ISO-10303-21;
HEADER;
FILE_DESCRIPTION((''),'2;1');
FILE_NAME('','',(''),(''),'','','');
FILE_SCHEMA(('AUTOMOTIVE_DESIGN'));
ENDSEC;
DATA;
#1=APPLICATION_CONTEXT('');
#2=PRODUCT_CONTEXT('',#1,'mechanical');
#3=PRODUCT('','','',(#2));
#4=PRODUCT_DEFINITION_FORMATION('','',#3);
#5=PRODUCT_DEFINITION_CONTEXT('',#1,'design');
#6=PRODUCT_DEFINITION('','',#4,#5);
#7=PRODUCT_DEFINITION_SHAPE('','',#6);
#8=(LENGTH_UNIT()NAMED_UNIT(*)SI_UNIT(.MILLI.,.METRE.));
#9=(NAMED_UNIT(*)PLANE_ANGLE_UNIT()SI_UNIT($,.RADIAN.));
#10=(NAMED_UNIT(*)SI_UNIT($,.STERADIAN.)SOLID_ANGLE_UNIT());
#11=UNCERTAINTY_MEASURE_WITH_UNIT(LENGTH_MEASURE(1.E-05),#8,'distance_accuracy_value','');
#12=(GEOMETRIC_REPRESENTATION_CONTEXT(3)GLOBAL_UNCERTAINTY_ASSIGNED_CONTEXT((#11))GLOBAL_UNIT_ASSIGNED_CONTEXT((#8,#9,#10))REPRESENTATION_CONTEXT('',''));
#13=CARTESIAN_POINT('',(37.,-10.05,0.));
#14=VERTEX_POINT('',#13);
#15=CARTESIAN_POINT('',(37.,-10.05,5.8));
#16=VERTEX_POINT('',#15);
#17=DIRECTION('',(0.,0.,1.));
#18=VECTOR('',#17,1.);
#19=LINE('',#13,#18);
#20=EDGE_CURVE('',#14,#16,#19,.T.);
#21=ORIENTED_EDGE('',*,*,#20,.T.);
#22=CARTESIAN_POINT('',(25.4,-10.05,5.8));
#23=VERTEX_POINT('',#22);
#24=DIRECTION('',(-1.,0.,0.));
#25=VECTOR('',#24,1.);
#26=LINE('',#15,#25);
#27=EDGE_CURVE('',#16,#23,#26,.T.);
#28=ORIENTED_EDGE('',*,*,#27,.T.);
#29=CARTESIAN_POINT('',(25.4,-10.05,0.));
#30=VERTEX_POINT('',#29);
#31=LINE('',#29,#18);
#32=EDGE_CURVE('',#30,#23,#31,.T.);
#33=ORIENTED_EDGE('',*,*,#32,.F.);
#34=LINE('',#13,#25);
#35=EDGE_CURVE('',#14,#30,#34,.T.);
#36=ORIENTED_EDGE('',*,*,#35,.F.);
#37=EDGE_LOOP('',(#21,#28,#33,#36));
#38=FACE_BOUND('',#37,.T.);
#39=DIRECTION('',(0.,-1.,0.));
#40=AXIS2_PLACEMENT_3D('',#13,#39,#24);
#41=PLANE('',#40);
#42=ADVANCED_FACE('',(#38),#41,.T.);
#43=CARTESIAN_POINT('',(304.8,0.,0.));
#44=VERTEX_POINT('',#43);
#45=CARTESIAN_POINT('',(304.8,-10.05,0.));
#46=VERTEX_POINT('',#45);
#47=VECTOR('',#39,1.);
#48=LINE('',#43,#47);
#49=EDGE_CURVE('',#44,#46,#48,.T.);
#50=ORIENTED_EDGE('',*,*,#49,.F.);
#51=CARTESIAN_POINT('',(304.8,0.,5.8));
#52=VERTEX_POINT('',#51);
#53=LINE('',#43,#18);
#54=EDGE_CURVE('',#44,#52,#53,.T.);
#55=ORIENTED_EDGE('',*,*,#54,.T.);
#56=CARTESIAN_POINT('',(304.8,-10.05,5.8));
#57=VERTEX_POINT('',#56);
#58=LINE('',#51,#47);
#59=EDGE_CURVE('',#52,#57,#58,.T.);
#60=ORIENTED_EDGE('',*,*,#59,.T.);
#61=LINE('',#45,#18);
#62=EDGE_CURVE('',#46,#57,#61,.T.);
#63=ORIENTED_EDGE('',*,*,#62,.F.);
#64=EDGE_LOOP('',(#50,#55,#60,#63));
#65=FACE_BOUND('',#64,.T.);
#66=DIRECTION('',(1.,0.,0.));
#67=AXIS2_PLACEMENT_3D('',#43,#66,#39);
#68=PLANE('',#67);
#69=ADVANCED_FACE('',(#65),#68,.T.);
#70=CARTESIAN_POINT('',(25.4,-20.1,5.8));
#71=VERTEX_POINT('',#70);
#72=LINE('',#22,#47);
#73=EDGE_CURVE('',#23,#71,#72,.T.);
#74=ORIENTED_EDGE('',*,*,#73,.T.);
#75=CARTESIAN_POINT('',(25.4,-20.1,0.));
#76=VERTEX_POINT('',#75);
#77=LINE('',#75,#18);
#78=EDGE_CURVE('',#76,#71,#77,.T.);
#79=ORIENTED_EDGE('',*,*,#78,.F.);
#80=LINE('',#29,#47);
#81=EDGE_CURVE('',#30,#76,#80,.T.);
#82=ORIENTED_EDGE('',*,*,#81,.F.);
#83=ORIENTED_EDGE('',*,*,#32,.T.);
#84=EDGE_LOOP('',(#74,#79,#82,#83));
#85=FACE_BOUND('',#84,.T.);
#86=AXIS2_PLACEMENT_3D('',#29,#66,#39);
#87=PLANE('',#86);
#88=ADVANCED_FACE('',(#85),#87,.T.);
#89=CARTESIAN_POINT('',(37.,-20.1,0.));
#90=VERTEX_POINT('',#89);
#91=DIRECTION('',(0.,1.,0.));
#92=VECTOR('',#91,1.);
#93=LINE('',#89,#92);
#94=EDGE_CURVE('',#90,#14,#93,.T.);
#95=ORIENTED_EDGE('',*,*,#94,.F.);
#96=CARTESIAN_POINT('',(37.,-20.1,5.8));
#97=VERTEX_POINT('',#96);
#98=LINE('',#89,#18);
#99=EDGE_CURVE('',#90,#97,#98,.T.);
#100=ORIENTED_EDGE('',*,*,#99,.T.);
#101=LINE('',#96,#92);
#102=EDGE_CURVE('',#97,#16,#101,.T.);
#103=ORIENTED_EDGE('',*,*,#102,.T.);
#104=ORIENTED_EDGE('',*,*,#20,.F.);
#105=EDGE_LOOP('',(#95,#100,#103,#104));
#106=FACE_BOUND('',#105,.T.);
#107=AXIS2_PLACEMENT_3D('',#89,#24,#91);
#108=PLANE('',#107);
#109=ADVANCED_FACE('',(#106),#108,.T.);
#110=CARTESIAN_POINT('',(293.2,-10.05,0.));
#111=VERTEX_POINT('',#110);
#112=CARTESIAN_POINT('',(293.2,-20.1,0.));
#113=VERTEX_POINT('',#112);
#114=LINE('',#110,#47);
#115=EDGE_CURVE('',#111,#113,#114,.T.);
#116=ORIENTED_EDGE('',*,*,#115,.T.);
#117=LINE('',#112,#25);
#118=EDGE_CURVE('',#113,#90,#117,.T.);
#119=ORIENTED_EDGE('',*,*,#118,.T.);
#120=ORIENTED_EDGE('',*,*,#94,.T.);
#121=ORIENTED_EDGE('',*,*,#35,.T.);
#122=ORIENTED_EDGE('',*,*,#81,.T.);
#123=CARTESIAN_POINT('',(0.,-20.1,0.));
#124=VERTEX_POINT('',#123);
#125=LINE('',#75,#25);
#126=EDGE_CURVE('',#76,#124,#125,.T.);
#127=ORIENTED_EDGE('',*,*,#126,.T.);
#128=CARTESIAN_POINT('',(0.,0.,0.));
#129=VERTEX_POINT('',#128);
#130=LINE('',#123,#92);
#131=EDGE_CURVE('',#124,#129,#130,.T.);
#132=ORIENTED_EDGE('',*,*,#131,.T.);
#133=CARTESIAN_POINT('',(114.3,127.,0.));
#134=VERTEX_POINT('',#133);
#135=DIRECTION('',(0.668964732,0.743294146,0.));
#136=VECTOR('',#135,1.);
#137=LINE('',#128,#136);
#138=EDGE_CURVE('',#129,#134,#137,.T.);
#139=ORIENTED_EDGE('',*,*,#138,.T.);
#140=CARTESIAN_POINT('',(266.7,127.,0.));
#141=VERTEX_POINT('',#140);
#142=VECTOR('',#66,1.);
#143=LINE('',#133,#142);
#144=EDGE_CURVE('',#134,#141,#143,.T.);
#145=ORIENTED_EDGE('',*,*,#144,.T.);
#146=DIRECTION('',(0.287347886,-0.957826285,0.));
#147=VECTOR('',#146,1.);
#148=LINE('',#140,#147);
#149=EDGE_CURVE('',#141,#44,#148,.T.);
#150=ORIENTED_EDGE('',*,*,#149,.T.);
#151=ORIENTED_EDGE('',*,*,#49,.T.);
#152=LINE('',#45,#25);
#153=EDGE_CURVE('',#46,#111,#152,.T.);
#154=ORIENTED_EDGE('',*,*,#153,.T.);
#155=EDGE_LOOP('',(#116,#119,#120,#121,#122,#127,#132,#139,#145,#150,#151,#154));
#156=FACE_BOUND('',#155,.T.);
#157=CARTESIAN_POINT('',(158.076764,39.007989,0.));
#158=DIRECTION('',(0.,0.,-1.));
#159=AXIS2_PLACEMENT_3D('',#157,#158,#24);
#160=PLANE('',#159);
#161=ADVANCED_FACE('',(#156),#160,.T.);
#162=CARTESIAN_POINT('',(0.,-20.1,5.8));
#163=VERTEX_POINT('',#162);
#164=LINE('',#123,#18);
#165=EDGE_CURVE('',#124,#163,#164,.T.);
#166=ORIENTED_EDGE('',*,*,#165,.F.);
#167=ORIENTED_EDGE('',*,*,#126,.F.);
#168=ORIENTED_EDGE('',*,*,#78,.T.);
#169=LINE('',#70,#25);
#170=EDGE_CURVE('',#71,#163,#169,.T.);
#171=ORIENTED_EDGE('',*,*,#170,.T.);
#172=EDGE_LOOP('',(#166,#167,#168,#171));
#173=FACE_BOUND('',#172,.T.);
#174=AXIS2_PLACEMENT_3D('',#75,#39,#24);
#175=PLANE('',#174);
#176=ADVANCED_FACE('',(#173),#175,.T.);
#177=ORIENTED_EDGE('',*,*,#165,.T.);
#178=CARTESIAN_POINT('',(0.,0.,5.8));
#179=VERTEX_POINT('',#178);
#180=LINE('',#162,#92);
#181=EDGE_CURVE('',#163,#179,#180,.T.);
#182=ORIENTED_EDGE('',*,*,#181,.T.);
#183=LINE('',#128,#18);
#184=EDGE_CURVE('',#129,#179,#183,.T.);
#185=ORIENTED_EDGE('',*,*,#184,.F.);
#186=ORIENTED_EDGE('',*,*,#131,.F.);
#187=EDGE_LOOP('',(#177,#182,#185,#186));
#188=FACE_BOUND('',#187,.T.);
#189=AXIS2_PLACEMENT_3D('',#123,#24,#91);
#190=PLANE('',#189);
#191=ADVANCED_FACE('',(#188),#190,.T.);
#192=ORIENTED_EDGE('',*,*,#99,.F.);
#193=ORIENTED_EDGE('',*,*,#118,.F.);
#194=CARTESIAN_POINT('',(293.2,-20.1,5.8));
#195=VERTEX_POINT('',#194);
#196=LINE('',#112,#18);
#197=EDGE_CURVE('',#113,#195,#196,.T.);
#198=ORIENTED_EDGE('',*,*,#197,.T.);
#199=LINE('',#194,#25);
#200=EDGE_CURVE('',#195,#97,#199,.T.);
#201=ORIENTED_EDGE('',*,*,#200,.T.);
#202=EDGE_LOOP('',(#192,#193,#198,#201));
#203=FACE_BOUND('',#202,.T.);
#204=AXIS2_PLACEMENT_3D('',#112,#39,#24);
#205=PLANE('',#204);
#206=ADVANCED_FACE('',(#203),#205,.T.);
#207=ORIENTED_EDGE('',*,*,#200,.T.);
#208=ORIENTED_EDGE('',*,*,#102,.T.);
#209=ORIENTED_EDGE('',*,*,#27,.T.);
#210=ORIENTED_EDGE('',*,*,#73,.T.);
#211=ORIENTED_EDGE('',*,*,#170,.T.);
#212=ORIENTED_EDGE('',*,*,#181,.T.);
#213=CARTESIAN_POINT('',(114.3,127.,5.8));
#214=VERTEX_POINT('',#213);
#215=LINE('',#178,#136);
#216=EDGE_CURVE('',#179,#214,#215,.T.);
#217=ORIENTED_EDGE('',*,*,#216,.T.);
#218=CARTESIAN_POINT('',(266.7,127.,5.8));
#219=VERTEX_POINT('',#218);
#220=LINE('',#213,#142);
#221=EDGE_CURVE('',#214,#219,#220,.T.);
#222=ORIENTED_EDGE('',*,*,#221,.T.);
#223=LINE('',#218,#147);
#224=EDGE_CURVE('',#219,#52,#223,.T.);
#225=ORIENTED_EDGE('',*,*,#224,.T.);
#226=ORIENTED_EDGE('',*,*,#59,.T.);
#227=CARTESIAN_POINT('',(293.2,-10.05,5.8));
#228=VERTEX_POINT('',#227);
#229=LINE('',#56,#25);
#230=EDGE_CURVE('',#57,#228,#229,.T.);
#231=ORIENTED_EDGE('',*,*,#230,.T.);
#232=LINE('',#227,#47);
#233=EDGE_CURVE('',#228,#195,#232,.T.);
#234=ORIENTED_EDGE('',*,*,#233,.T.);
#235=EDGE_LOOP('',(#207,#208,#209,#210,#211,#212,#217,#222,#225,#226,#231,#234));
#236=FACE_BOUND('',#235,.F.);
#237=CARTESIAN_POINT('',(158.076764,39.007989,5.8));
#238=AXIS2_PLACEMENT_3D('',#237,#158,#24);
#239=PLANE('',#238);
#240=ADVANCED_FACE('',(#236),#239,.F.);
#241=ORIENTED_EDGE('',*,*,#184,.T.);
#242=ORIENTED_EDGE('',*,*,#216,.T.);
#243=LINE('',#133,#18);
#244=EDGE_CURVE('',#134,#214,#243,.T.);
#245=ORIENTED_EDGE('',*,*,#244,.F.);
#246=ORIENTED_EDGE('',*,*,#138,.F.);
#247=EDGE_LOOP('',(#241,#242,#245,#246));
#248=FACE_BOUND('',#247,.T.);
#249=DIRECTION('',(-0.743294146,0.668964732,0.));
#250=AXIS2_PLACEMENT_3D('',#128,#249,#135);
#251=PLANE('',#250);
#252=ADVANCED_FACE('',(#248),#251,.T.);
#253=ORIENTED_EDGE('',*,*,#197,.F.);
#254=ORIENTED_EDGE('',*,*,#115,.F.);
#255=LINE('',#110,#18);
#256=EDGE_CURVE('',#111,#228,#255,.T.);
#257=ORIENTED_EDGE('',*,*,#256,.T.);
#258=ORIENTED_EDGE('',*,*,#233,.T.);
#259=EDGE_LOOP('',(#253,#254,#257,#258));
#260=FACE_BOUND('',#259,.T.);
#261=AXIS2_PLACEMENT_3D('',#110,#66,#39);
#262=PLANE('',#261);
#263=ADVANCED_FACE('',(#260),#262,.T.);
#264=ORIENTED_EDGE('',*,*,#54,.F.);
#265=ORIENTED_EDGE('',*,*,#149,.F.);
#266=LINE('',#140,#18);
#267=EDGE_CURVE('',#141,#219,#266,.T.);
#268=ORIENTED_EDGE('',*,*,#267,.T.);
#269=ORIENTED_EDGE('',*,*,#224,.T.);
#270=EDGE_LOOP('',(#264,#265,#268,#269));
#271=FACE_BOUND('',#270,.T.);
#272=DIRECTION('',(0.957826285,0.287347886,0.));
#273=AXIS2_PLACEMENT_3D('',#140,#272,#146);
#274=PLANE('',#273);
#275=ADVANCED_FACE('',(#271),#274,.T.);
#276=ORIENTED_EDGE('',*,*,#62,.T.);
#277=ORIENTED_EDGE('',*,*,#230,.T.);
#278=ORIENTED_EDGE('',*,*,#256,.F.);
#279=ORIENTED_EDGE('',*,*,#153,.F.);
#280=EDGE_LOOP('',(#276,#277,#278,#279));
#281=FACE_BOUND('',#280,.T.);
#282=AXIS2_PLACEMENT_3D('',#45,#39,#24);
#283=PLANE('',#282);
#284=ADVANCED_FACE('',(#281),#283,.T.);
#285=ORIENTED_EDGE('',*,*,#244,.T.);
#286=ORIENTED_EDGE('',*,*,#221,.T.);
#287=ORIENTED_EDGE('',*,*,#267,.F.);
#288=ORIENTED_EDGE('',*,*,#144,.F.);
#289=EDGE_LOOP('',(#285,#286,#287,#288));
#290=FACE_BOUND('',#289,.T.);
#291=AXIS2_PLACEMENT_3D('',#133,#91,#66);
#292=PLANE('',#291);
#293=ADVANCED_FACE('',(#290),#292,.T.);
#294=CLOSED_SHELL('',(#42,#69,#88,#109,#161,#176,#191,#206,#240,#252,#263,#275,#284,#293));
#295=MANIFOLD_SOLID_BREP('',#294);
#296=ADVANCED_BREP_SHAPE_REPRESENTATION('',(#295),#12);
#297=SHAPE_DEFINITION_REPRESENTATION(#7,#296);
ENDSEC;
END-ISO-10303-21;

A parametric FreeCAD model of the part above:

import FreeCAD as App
import Part
import Sketcher
from FreeCAD import Vector

doc = App.newDocument("Part")
params = doc.addObject("Spreadsheet::Sheet", "Params")
for row, (alias, value) in enumerate([
    ("sketch1_width", "25.4 mm"),
    ("sketch1_width2", "11.6 mm"),
    ("sketch1_width3", "256.2 mm"),
    ("sketch1_width4", "152.4 mm"),
    ("sketch1_height", "20.1 mm"),
    ("pad1_length", "5.8 mm"),
], start=1):
    params.set(f"A{row}", alias)
    params.set(f"B{row}", "=" + value)
    params.setAlias(f"B{row}", alias)

body = doc.addObject("PartDesign::Body", "Body")

# Sketch on XY plane
sketch1 = doc.addObject("Sketcher::SketchObject", "Sketch")
body.addObject(sketch1)
sketch1.AttachmentSupport = (doc.XY_Plane, [""])
sketch1.MapMode = "FlatFace"
sketch1.addGeometry(Part.LineSegment(Vector(0, 0, 0), Vector(0, -20, 0)), False)
sketch1.addGeometry(Part.LineSegment(Vector(0, -20, 0), Vector(25, -20, 0)), False)
sketch1.addGeometry(Part.LineSegment(Vector(25, -20, 0), Vector(25, -10, 0)), False)
sketch1.addGeometry(Part.LineSegment(Vector(25, -10, 0), Vector(37, -10, 0)), False)
sketch1.addGeometry(Part.LineSegment(Vector(37, -10, 0), Vector(37, -20, 0)), False)
sketch1.addGeometry(Part.LineSegment(Vector(37, -20, 0), Vector(293, -20, 0)), False)
sketch1.addGeometry(Part.LineSegment(Vector(293, -20, 0), Vector(293, -10, 0)), False)
sketch1.addGeometry(Part.LineSegment(Vector(293, -10, 0), Vector(305, -10, 0)), False)
sketch1.addGeometry(Part.LineSegment(Vector(305, -10, 0), Vector(305, 0, 0)), False)
sketch1.addGeometry(Part.LineSegment(Vector(305, 0, 0), Vector(267, 127, 0)), False)
sketch1.addGeometry(Part.LineSegment(Vector(267, 127, 0), Vector(114, 127, 0)), False)
sketch1.addGeometry(Part.LineSegment(Vector(114, 127, 0), Vector(0, 0, 0)), False)
sketch1.addConstraint(Sketcher.Constraint("Coincident", 0, 2, 1, 1))
sketch1.addConstraint(Sketcher.Constraint("Coincident", 1, 2, 2, 1))
sketch1.addConstraint(Sketcher.Constraint("Coincident", 2, 2, 3, 1))
sketch1.addConstraint(Sketcher.Constraint("Coincident", 3, 2, 4, 1))
sketch1.addConstraint(Sketcher.Constraint("Coincident", 4, 2, 5, 1))
sketch1.addConstraint(Sketcher.Constraint("Coincident", 5, 2, 6, 1))
sketch1.addConstraint(Sketcher.Constraint("Coincident", 6, 2, 7, 1))
sketch1.addConstraint(Sketcher.Constraint("Coincident", 7, 2, 8, 1))
sketch1.addConstraint(Sketcher.Constraint("Coincident", 8, 2, 9, 1))
sketch1.addConstraint(Sketcher.Constraint("Coincident", 9, 2, 10, 1))
sketch1.addConstraint(Sketcher.Constraint("Coincident", 10, 2, 11, 1))
sketch1.addConstraint(Sketcher.Constraint("Coincident", 11, 2, 0, 1))
sketch1.addConstraint(Sketcher.Constraint("Vertical", 0))
sketch1.addConstraint(Sketcher.Constraint("Horizontal", 1))
sketch1.addConstraint(Sketcher.Constraint("Vertical", 2))
sketch1.addConstraint(Sketcher.Constraint("Horizontal", 3))
sketch1.addConstraint(Sketcher.Constraint("Vertical", 4))
sketch1.addConstraint(Sketcher.Constraint("Horizontal", 5))
sketch1.addConstraint(Sketcher.Constraint("Vertical", 6))
sketch1.addConstraint(Sketcher.Constraint("Horizontal", 7))
sketch1.addConstraint(Sketcher.Constraint("Vertical", 8))
sketch1.addConstraint(Sketcher.Constraint("Horizontal", 10))
sketch1.addConstraint(Sketcher.Constraint("Coincident", 11, 2, -1, 1))
sketch1.addConstraint(Sketcher.Constraint("PointOnObject", 8, 2, -1))
sketch1.addConstraint(Sketcher.Constraint("Horizontal", 1, 2, 4, 2))
sketch1.addConstraint(Sketcher.Constraint("Horizontal", 3, 2, 6, 2))
sketch1.addConstraint(Sketcher.Constraint("Equal", 3, 7))
sketch1.addConstraint(Sketcher.Constraint("Equal", 6, 8))
sketch1.addConstraint(Sketcher.Constraint("DistanceX", 1, 1, 1, 2, 25.4))
sketch1.addConstraint(Sketcher.Constraint("DistanceX", 3, 1, 3, 2, 11.6))
sketch1.addConstraint(Sketcher.Constraint("DistanceX", 5, 1, 5, 2, 256.2))
sketch1.addConstraint(Sketcher.Constraint("DistanceX", 10, 2, 10, 1, 152.4))
sketch1.addConstraint(Sketcher.Constraint("DistanceY", 0, 2, 0, 1, 20.1))
sketch1.addConstraint(Sketcher.Constraint("DistanceY", -1, 1, 9, 2, 127.0))
sketch1.addConstraint(Sketcher.Constraint("DistanceX", -1, 1, 9, 2, 266.7))
sketch1.setExpression("Constraints[28]", "Params.sketch1_width")
sketch1.setExpression("Constraints[29]", "Params.sketch1_width2")
sketch1.setExpression("Constraints[30]", "Params.sketch1_width3")
sketch1.setExpression("Constraints[31]", "Params.sketch1_width4")
sketch1.setExpression("Constraints[32]", "Params.sketch1_height")
pad1 = doc.addObject("PartDesign::Pad", "Pad")
body.addObject(pad1)
pad1.Profile = sketch1
pad1.setExpression("Length", "Params.pad1_length")

doc.recompute()
